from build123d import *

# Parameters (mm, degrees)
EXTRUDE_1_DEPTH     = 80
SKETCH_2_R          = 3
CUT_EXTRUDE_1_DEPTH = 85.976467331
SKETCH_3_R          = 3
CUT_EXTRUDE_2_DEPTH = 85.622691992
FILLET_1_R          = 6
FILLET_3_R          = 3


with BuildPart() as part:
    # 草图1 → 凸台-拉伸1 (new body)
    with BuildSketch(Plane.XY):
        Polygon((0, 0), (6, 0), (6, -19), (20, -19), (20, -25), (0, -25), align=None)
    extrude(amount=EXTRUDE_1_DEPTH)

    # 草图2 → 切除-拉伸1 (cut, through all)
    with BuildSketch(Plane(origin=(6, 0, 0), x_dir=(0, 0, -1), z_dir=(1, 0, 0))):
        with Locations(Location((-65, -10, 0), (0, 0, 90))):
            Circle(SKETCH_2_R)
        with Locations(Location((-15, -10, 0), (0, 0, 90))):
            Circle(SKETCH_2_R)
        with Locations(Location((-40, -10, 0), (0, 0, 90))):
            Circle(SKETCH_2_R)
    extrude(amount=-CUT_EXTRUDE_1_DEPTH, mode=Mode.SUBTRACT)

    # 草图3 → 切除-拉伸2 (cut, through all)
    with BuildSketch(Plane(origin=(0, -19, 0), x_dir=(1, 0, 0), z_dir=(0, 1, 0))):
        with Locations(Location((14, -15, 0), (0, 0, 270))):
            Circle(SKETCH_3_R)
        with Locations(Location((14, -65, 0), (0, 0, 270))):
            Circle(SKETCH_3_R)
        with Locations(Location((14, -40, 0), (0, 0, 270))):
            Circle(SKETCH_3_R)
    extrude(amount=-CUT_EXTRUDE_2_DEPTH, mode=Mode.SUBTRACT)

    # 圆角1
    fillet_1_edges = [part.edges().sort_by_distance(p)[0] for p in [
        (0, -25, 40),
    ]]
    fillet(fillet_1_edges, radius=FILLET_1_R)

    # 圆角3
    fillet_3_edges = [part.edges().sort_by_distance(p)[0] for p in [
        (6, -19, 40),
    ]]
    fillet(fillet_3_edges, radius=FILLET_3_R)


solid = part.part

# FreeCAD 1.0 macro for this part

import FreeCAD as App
import Part
import Sketcher
Q = App.Units.Quantity


def edges_at(feature, points):
    """Names of the edges that pass closest to the given points."""
    edges = feature.Shape.Edges
    near = lambda p: min(range(len(edges)), key=lambda i: edges[i].distToShape(Part.Vertex(*p))[0])
    return sorted({f"Edge{near(p) + 1}" for p in points})


def add_polygon(sketch, points):
    """Adds a closed chain of lines whose ends are joined by coincident constraints."""
    first, n = sketch.GeometryCount, len(points)
    for a, b in zip(points, points[1:] + points[:1]):
        sketch.addGeometry(Part.LineSegment(App.Vector(*a, 0), App.Vector(*b, 0)), False)
    for i in range(n):
        sketch.addConstraint(Sketcher.Constraint("Coincident", first + i, 2, first + (i + 1) % n, 1))

doc = App.newDocument("Part")
body = doc.addObject("PartDesign::Body", "Body")

# Sketch on XY plane
sketch1 = doc.addObject("Sketcher::SketchObject", "Sketch")
body.addObject(sketch1)
sketch1.AttachmentSupport = (doc.XY_Plane, [""])
sketch1.MapMode = "FlatFace"
add_polygon(sketch1, [(6, 0), (0, 0), (0, -25), (20, -25), (20, -19), (6, -19)])  # lines 0-5
sketch1.addConstraint([
    Sketcher.Constraint("Horizontal", 0),
    Sketcher.Constraint("Vertical", 1),
    Sketcher.Constraint("Horizontal", 2),
    Sketcher.Constraint("Vertical", 3),
    Sketcher.Constraint("Horizontal", 4),
    Sketcher.Constraint("Vertical", 5),
    Sketcher.Constraint("Coincident", 0, 2, -1, 1),
    Sketcher.Constraint("Equal", 0, 3),
    Sketcher.Constraint("DistanceX", 0, 2, 0, 1, Q("6 mm")),
    Sketcher.Constraint("DistanceX", 2, 1, 2, 2, Q("20 mm")),
    Sketcher.Constraint("DistanceY", 1, 2, 1, 1, Q("25 mm")),
])
pad1 = doc.addObject("PartDesign::Pad", "Pad")
body.addObject(pad1)
pad1.Profile = sketch1
pad1.Length = 80

# Sketch on YZ plane
sketch2 = doc.addObject("Sketcher::SketchObject", "Sketch001")
body.addObject(sketch2)
sketch2.AttachmentSupport = (doc.YZ_Plane, [""])
sketch2.MapMode = "FlatFace"
sketch2.AttachmentOffset = App.Placement(App.Vector(0, 0, 6), App.Rotation())
sketch2.addGeometry([
    Part.Circle(App.Vector(-10, 65, 0), App.Vector(0, 0, 1), 3),
    Part.Circle(App.Vector(-10, 15, 0), App.Vector(0, 0, 1), 3),
    Part.Circle(App.Vector(-10, 40, 0), App.Vector(0, 0, 1), 3),
], False)
sketch2.addConstraint([
    Sketcher.Constraint("Equal", 0, 1),
    Sketcher.Constraint("Equal", 1, 2),
    Sketcher.Constraint("Vertical", 0, 3, 1, 3),
    Sketcher.Constraint("Vertical", 1, 3, 2, 3),
    Sketcher.Constraint("Diameter", 0, Q("6 mm")),
    Sketcher.Constraint("DistanceX", 0, 3, -1, 1, Q("10 mm")),
    Sketcher.Constraint("DistanceY", -1, 1, 0, 3, Q("65 mm")),
    Sketcher.Constraint("DistanceY", -1, 1, 1, 3, Q("15 mm")),
    Sketcher.Constraint("DistanceY", -1, 1, 2, 3, Q("40 mm")),
])
pocket1 = doc.addObject("PartDesign::Pocket", "Pocket")
body.addObject(pocket1)
pocket1.Profile = sketch2
pocket1.Type = "ThroughAll"

# Sketch on XZ plane
sketch3 = doc.addObject("Sketcher::SketchObject", "Sketch002")
body.addObject(sketch3)
sketch3.AttachmentSupport = (doc.XZ_Plane, [""])
sketch3.MapMode = "FlatFace"
sketch3.AttachmentOffset = App.Placement(App.Vector(0, 0, 19), App.Rotation())
sketch3.addGeometry([
    Part.Circle(App.Vector(14, 15, 0), App.Vector(0, 0, 1), 3),
    Part.Circle(App.Vector(14, 65, 0), App.Vector(0, 0, 1), 3),
    Part.Circle(App.Vector(14, 40, 0), App.Vector(0, 0, 1), 3),
], False)
sketch3.addConstraint([
    Sketcher.Constraint("Equal", 0, 1),
    Sketcher.Constraint("Equal", 1, 2),
    Sketcher.Constraint("Vertical", 0, 3, 1, 3),
    Sketcher.Constraint("Vertical", 1, 3, 2, 3),
    Sketcher.Constraint("Diameter", 0, Q("6 mm")),
    Sketcher.Constraint("DistanceX", -1, 1, 0, 3, Q("14 mm")),
    Sketcher.Constraint("DistanceY", -1, 1, 0, 3, Q("15 mm")),
    Sketcher.Constraint("DistanceY", -1, 1, 1, 3, Q("65 mm")),
    Sketcher.Constraint("DistanceY", -1, 1, 2, 3, Q("40 mm")),
])
pocket2 = doc.addObject("PartDesign::Pocket", "Pocket001")
body.addObject(pocket2)
pocket2.Profile = sketch3
pocket2.Type = "ThroughAll"
pocket2.Reversed = True
doc.recompute()

fillet = doc.addObject("PartDesign::Fillet", "Fillet")
body.addObject(fillet)
fillet.Base = (pocket2, edges_at(pocket2, [(0, -25, 40)]))
fillet.Radius = 6
doc.recompute()

fillet2 = doc.addObject("PartDesign::Fillet", "Fillet001")
body.addObject(fillet2)
fillet2.Base = (fillet, edges_at(fillet, [(6, -19, 40)]))
fillet2.Radius = 3

doc.recompute()
